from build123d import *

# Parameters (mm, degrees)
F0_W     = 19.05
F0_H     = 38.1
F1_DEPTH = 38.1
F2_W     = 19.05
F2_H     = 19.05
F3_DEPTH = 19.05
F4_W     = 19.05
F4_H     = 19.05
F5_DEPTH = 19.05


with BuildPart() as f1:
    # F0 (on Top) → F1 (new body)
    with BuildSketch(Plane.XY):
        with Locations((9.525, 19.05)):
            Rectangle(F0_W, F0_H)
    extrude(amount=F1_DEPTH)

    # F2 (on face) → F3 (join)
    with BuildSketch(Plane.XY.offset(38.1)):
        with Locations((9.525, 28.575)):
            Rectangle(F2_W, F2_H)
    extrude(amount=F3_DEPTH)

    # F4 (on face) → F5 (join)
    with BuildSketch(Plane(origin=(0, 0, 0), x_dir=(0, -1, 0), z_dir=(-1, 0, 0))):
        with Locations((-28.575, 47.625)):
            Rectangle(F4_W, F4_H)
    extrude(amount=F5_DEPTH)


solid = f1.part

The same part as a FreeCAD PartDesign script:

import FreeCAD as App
import Part
import Sketcher
Q = App.Units.Quantity

doc = App.newDocument("Part")
body = doc.addObject("PartDesign::Body", "Body")

sketch1 = body.newObject("Sketcher::SketchObject", "Sketch")
sketch1.AttachmentSupport = (doc.getObject("XY_Plane"), [""])
sketch1.MapMode = "FlatFace"
sketch1.addGeometry([
    Part.LineSegment(App.Vector(0, 38, 0), App.Vector(0, 0, 0)),
    Part.LineSegment(App.Vector(0, 0, 0), App.Vector(19, 0, 0)),
    Part.LineSegment(App.Vector(19, 0, 0), App.Vector(19, 38, 0)),
    Part.LineSegment(App.Vector(19, 38, 0), App.Vector(0, 38, 0)),
], False)
sketch1.addConstraint([
    Sketcher.Constraint("Coincident", 0, 2, 1, 1),
    Sketcher.Constraint("Coincident", 1, 2, 2, 1),
    Sketcher.Constraint("Coincident", 2, 2, 3, 1),
    Sketcher.Constraint("Coincident", 3, 2, 0, 1),
    Sketcher.Constraint("Vertical", 0),
    Sketcher.Constraint("Horizontal", 1),
    Sketcher.Constraint("Vertical", 2),
    Sketcher.Constraint("Horizontal", 3),
    Sketcher.Constraint("Coincident", 0, 2, -1, 1),
    Sketcher.Constraint("DistanceY", 0, 2, 0, 1, Q("1.5 in")),
    Sketcher.Constraint("DistanceX", 1, 1, 1, 2, Q("0.75 in")),
])
pad1 = body.newObject("PartDesign::Pad", "Pad")
pad1.Profile = sketch1
pad1.Length = Q("1.5 in")

sketch2 = body.newObject("Sketcher::SketchObject", "Sketch001")
sketch2.AttachmentSupport = (doc.getObject("XY_Plane"), [""])
sketch2.MapMode = "FlatFace"
sketch2.AttachmentOffset = App.Placement(App.Vector(0, 0, 1.5 * 25.4), App.Rotation())
sketch2.addGeometry([
    Part.LineSegment(App.Vector(0, 38, 0), App.Vector(0, 19, 0)),
    Part.LineSegment(App.Vector(0, 19, 0), App.Vector(19, 19, 0)),
    Part.LineSegment(App.Vector(19, 19, 0), App.Vector(19, 38, 0)),
    Part.LineSegment(App.Vector(19, 38, 0), App.Vector(0, 38, 0)),
], False)
sketch2.addConstraint([
    Sketcher.Constraint("Coincident", 0, 2, 1, 1),
    Sketcher.Constraint("Coincident", 1, 2, 2, 1),
    Sketcher.Constraint("Coincident", 2, 2, 3, 1),
    Sketcher.Constraint("Coincident", 3, 2, 0, 1),
    Sketcher.Constraint("Vertical", 0),
    Sketcher.Constraint("Horizontal", 1),
    Sketcher.Constraint("Vertical", 2),
    Sketcher.Constraint("Horizontal", 3),
    Sketcher.Constraint("PointOnObject", 0, 2, -2),
    Sketcher.Constraint("Equal", 3, 0),
    Sketcher.Constraint("DistanceX", 1, 1, 1, 2, Q("0.75 in")),
    Sketcher.Constraint("DistanceY", -1, 1, 2, 2, Q("1.5 in")),
])
pad2 = body.newObject("PartDesign::Pad", "Pad001")
pad2.Profile = sketch2
pad2.Length = Q("0.75 in")

sketch3 = body.newObject("Sketcher::SketchObject", "Sketch002")
sketch3.AttachmentSupport = (doc.getObject("YZ_Plane"), [""])
sketch3.MapMode = "FlatFace"
sketch3.addGeometry([
    Part.LineSegment(App.Vector(38, 57, 0), App.Vector(38, 38, 0)),
    Part.LineSegment(App.Vector(38, 38, 0), App.Vector(19, 38, 0)),
    Part.LineSegment(App.Vector(19, 38, 0), App.Vector(19, 57, 0)),
    Part.LineSegment(App.Vector(19, 57, 0), App.Vector(38, 57, 0)),
], False)
sketch3.addConstraint([
    Sketcher.Constraint("Coincident", 0, 2, 1, 1),
    Sketcher.Constraint("Coincident", 1, 2, 2, 1),
    Sketcher.Constraint("Coincident", 2, 2, 3, 1),
    Sketcher.Constraint("Coincident", 3, 2, 0, 1),
    Sketcher.Constraint("Vertical", 0),
    Sketcher.Constraint("Horizontal", 1),
    Sketcher.Constraint("Vertical", 2),
    Sketcher.Constraint("Horizontal", 3),
    Sketcher.Constraint("Equal", 3, 0),
    Sketcher.Constraint("DistanceX", 1, 2, 1, 1, Q("0.75 in")),
    Sketcher.Constraint("DistanceX", -1, 1, 0, 2, Q("1.5 in")),
    Sketcher.Constraint("DistanceY", -1, 1, 0, 2, Q("1.5 in")),
])
pad3 = body.newObject("PartDesign::Pad", "Pad002")
pad3.Profile = sketch3
pad3.Length = Q("0.75 in")
pad3.Reversed = True

doc.recompute()
